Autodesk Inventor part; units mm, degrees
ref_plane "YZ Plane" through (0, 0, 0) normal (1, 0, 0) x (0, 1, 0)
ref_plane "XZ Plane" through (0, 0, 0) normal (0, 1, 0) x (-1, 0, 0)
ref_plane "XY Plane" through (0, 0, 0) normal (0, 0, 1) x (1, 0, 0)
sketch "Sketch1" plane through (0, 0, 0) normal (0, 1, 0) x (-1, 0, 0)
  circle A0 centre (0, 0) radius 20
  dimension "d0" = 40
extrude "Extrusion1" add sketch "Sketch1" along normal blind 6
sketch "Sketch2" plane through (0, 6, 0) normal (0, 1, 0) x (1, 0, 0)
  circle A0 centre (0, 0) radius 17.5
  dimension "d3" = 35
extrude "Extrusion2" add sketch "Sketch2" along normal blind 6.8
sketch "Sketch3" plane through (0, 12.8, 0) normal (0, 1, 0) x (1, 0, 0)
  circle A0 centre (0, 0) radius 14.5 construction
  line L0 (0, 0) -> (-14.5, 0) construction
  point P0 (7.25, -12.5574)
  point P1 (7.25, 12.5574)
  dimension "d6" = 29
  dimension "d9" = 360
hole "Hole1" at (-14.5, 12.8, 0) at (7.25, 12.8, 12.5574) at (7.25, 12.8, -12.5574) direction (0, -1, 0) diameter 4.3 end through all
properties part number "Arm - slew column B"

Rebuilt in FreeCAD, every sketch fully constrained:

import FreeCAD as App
import Part
import Sketcher
from FreeCAD import Vector
Q = App.Units.Quantity

doc = App.newDocument("Part")
body = doc.addObject("PartDesign::Body", "Body")

# Sketch on XZ plane
sketch1 = doc.addObject("Sketcher::SketchObject", "Sketch")
body.addObject(sketch1)
sketch1.AttachmentSupport = (doc.XZ_Plane, [""])
sketch1.MapMode = "FlatFace"
sketch1.addGeometry(Part.Circle(Vector(0, 0, 0), Vector(0, 0, 1), 20), False)
sketch1.addConstraint(Sketcher.Constraint("Coincident", 0, 3, -1, 1))
sketch1.addConstraint(Sketcher.Constraint("Diameter", 0, Q("40 mm")))
pad1 = doc.addObject("PartDesign::Pad", "Pad")
body.addObject(pad1)
pad1.Profile = sketch1
pad1.Length = 6
pad1.Reversed = True

# Sketch on XZ plane
sketch2 = doc.addObject("Sketcher::SketchObject", "Sketch001")
body.addObject(sketch2)
sketch2.AttachmentSupport = (doc.XZ_Plane, [""])
sketch2.MapMode = "FlatFace"
sketch2.AttachmentOffset = App.Placement(Vector(0, 0, -6), App.Rotation())
sketch2.addGeometry(Part.Circle(Vector(0, 0, 0), Vector(0, 0, 1), 18), False)
sketch2.addConstraint(Sketcher.Constraint("Coincident", 0, 3, -1, 1))
sketch2.addConstraint(Sketcher.Constraint("Diameter", 0, Q("35 mm")))
pad2 = doc.addObject("PartDesign::Pad", "Pad001")
body.addObject(pad2)
pad2.Profile = sketch2
pad2.Length = 6.8
pad2.Reversed = True

# Sketch on XZ plane
sketch3 = doc.addObject("Sketcher::SketchObject", "Sketch002")
body.addObject(sketch3)
sketch3.AttachmentSupport = (doc.XZ_Plane, [""])
sketch3.MapMode = "FlatFace"
sketch3.AttachmentOffset = App.Placement(Vector(0, 0, -12.8), App.Rotation())
sketch3.addGeometry(Part.Circle(Vector(-14.5, 0, 0), Vector(0, 0, 1), 2.1), False)
sketch3.addGeometry(Part.Circle(Vector(7.2, 12.6, 0), Vector(0, 0, 1), 2.1), False)
sketch3.addGeometry(Part.Circle(Vector(7.2, -12.6, 0), Vector(0, 0, 1), 2.1), False)
sketch3.addConstraint(Sketcher.Constraint("Equal", 0, 1))
sketch3.addConstraint(Sketcher.Constraint("Equal", 1, 2))
sketch3.addConstraint(Sketcher.Constraint("Symmetric", 1, 3, 2, 3, -1))
sketch3.addConstraint(Sketcher.Constraint("PointOnObject", 0, 3, -1))
sketch3.addConstraint(Sketcher.Constraint("Diameter", 0, Q("4.3 mm")))
sketch3.addConstraint(Sketcher.Constraint("DistanceX", 0, 3, -1, 1, Q("14.5 mm")))
sketch3.addConstraint(Sketcher.Constraint("DistanceX", -1, 1, 1, 3, Q("7.25 mm")))
sketch3.addConstraint(Sketcher.Constraint("DistanceY", -1, 1, 1, 3, Q("12.5574 mm")))
doc.recompute()
hole = doc.addObject("PartDesign::Hole", "Hole")
body.addObject(hole)
hole.Profile = sketch3
hole.ThreadType = "None"
hole.Diameter = 4.3
hole.DepthType = "ThroughAll"
hole.Reversed = True

doc.recompute()
